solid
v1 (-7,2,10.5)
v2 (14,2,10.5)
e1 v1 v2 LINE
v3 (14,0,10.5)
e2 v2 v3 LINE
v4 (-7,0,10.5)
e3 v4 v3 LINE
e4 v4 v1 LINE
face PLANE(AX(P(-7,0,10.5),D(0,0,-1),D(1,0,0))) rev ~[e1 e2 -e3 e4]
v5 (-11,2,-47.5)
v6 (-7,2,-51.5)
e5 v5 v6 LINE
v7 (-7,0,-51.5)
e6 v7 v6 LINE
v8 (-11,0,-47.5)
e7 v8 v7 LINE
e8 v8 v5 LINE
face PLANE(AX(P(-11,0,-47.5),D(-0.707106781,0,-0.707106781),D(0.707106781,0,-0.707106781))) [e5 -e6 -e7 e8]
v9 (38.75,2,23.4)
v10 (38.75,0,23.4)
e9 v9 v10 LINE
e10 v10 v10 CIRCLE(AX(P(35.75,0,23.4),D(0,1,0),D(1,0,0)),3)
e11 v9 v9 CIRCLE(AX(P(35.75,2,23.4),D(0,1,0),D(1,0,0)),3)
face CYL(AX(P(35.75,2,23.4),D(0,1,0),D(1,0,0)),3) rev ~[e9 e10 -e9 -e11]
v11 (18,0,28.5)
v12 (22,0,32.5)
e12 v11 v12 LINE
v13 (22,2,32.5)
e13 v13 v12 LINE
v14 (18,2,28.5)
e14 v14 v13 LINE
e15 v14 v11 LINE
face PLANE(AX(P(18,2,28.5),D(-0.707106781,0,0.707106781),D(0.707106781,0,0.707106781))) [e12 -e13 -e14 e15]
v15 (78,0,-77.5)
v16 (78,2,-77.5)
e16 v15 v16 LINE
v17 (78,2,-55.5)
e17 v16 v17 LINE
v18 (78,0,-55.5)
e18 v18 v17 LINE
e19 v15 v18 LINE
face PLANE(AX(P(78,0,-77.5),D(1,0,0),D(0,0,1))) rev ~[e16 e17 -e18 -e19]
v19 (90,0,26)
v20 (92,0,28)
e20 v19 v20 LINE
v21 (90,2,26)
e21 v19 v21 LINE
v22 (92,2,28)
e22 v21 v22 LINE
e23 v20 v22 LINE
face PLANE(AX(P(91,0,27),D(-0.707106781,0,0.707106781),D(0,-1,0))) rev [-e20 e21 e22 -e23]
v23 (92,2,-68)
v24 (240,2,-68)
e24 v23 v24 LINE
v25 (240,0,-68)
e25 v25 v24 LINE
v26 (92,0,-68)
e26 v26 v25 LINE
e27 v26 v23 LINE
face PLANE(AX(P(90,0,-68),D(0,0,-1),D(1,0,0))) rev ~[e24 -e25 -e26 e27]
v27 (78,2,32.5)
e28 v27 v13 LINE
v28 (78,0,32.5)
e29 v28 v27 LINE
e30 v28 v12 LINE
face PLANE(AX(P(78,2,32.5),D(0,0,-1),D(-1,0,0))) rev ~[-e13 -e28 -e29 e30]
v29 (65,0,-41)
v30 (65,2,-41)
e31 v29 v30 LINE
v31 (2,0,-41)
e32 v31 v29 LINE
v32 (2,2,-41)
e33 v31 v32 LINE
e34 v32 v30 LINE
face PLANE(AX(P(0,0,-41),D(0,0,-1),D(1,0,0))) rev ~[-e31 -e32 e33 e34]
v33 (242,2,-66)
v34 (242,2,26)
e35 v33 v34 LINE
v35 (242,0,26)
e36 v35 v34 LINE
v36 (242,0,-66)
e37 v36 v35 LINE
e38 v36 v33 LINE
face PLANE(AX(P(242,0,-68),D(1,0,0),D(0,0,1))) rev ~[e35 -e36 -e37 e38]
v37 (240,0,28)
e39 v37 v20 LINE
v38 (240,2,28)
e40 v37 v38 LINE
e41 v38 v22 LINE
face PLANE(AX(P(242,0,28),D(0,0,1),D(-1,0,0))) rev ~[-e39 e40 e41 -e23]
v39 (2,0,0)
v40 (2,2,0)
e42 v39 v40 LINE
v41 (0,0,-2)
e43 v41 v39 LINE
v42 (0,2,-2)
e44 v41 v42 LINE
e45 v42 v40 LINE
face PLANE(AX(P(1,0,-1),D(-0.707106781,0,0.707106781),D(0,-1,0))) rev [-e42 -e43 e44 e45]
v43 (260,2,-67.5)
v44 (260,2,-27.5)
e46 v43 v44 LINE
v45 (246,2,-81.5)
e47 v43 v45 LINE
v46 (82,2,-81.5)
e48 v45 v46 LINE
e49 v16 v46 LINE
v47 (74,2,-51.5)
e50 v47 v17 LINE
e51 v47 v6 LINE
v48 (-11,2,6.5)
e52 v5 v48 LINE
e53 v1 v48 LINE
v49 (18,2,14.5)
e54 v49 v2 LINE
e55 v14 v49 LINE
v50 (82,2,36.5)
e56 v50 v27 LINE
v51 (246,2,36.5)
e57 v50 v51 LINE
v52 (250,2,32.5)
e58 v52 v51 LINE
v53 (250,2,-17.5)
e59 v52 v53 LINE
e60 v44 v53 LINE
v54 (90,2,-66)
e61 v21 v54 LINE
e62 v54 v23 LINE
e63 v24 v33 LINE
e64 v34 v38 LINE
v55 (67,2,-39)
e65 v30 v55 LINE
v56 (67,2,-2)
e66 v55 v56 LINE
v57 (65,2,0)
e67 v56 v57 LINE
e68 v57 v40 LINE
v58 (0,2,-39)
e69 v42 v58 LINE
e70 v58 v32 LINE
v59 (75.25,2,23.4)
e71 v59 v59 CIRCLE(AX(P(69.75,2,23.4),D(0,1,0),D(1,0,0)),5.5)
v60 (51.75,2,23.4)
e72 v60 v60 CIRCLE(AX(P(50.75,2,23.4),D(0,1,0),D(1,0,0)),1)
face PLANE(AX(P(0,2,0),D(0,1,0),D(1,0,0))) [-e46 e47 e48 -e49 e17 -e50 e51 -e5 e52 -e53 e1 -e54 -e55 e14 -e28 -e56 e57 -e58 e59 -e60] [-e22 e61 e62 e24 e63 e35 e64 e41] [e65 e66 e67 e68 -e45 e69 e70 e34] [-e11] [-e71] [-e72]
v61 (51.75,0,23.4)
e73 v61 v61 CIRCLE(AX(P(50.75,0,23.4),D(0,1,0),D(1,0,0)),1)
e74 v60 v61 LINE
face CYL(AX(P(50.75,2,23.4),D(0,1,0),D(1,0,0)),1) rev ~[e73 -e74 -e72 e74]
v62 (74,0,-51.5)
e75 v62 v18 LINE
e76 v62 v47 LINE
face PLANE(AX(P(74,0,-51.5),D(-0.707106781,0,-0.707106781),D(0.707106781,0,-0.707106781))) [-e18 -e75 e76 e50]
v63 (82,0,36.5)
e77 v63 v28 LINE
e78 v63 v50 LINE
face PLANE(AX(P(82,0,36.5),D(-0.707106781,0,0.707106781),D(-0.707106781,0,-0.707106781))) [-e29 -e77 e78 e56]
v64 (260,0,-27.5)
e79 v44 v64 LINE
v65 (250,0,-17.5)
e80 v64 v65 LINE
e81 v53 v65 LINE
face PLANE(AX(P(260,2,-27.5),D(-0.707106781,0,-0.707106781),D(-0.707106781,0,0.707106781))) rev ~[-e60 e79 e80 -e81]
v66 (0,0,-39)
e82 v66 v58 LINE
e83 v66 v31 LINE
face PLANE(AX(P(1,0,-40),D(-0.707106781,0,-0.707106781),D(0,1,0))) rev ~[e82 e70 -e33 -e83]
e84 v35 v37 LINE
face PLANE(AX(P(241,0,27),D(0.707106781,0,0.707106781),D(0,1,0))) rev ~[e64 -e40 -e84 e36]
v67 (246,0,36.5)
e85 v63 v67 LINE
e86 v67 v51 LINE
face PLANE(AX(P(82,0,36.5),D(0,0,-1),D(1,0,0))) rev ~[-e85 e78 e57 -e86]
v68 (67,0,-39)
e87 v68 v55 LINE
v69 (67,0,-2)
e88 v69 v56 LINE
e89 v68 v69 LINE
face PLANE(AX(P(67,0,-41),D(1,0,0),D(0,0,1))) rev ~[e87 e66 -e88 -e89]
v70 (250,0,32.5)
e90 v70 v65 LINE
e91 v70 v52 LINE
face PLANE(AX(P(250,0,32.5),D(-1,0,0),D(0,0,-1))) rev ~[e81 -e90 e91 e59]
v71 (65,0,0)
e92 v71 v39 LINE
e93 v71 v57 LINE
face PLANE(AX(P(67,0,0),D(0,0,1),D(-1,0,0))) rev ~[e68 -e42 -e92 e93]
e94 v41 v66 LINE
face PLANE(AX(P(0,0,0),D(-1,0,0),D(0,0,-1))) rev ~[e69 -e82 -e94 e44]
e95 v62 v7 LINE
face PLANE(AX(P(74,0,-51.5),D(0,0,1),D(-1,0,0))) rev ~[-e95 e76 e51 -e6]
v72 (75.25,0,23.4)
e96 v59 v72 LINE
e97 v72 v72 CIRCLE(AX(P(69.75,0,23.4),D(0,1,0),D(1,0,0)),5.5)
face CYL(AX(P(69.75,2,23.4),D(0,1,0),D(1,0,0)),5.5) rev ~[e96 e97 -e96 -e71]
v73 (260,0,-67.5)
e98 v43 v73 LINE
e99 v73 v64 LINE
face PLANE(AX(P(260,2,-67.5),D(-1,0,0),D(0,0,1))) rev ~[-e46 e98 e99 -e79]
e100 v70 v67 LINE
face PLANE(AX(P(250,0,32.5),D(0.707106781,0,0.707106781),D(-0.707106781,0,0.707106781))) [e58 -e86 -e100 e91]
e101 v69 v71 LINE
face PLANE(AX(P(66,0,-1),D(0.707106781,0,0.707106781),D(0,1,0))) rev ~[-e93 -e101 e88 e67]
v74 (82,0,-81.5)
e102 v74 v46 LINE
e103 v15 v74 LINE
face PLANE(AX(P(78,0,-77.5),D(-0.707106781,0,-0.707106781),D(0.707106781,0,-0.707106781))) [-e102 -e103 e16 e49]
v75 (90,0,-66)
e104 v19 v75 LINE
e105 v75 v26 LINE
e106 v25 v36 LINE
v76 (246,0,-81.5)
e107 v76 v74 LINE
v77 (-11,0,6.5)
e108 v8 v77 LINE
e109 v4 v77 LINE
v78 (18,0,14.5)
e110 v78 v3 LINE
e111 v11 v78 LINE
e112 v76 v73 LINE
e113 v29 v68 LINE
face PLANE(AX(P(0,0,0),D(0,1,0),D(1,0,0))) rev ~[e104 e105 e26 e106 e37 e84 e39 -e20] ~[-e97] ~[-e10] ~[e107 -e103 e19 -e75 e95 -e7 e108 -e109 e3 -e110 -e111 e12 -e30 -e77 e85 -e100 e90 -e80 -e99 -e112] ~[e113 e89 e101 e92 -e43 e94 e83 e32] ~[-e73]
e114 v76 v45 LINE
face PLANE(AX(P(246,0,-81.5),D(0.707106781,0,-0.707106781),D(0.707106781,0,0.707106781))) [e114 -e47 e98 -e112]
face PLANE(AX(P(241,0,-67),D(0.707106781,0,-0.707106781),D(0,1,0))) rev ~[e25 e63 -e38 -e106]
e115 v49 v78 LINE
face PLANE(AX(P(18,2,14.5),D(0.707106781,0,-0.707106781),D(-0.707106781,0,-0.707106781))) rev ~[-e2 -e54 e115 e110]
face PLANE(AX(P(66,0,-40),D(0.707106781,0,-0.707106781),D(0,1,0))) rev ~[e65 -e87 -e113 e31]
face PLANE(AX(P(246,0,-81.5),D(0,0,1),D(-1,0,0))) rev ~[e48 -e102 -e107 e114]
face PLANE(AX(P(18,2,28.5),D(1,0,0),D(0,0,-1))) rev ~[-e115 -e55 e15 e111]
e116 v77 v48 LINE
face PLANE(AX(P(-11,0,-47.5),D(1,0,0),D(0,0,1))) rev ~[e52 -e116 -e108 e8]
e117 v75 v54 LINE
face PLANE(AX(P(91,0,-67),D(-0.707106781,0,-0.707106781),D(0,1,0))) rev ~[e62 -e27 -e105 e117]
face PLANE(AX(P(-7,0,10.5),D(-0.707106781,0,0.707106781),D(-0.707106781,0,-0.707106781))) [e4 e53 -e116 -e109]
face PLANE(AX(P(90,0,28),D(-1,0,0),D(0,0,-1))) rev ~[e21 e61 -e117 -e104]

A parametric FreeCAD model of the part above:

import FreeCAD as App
import Part
import Sketcher

V = App.Vector


def edges_at(feature, points):
    """Names of the edges that pass closest to the given points."""
    edges = feature.Shape.Edges
    near = lambda p: min(range(len(edges)), key=lambda i: edges[i].distToShape(Part.Vertex(*p))[0])
    return sorted({f"Edge{near(p) + 1}" for p in points})


def add_polygon(sketch, points):
    """Adds a closed chain of lines whose ends are joined by coincident constraints."""
    first, n = sketch.GeometryCount, len(points)
    for a, b in zip(points, points[1:] + points[:1]):
        sketch.addGeometry(Part.LineSegment(App.Vector(*a, 0), App.Vector(*b, 0)), False)
    for i in range(n):
        sketch.addConstraint(Sketcher.Constraint("Coincident", first + i, 2, first + (i + 1) % n, 1))

doc = App.newDocument("Part")
body = doc.addObject("PartDesign::Body", "Body")

# Sketch on XZ plane
sketch1 = doc.addObject("Sketcher::SketchObject", "Sketch")
body.addObject(sketch1)
sketch1.AttachmentSupport = (doc.XZ_Plane, [""])
sketch1.MapMode = "FlatFace"
add_polygon(sketch1, [(-7, -52), (-11, -48), (-11, 6), (-7, 10), (74, 10), (78, 14), (78, 32), (82, 36), (246, 36), (250, 32), (250, -78), (246, -82), (82, -82), (78, -78), (78, -56), (74, -52)])  # lines 0-15
add_polygon(sketch1, [(90, 28), (90, -68), (242, -68), (242, 28)])  # lines 16-19
add_polygon(sketch1, [(0, 0), (0, -41), (67, -41), (67, 0)])  # lines 20-23
sketch1.addConstraint([
    Sketcher.Constraint("Vertical", 1),
    Sketcher.Constraint("Horizontal", 3),
    Sketcher.Constraint("Vertical", 5),
    Sketcher.Constraint("Horizontal", 7),
    Sketcher.Constraint("Vertical", 9),
    Sketcher.Constraint("Horizontal", 11),
    Sketcher.Constraint("Vertical", 13),
    Sketcher.Constraint("Horizontal", 15),
    Sketcher.Constraint("Vertical", 16),
    Sketcher.Constraint("Horizontal", 17),
    Sketcher.Constraint("Vertical", 18),
    Sketcher.Constraint("Horizontal", 19),
    Sketcher.Constraint("Vertical", 20),
    Sketcher.Constraint("Horizontal", 21),
    Sketcher.Constraint("Vertical", 22),
    Sketcher.Constraint("Horizontal", 23),
    Sketcher.Constraint("Coincident", 23, 2, -1, 1),
    Sketcher.Constraint("Perpendicular", 0, 2),
    Sketcher.Constraint("Parallel", 2, 4),
    Sketcher.Constraint("Parallel", 4, 6),
    Sketcher.Constraint("Perpendicular", 6, 8),
    Sketcher.Constraint("Perpendicular", 8, 10),
    Sketcher.Constraint("Perpendicular", 10, 12),
    Sketcher.Constraint("Parallel", 12, 14),
    Sketcher.Constraint("Horizontal", 5, 2, 8, 2),
    Sketcher.Constraint("Horizontal", 9, 2, 12, 2),
    Sketcher.Constraint("Vertical", 7, 2, 10, 2),
    Sketcher.Constraint("Vertical", 6, 2, 11, 2),
    Sketcher.Constraint("Vertical", 5, 2, 12, 2),
    Sketcher.Constraint("Vertical", 3, 2, 14, 2),
    Sketcher.Constraint("Vertical", 2, 2, 15, 2),
    Sketcher.Constraint("Equal", 2, 4),
    Sketcher.Constraint("Equal", 4, 6),
    Sketcher.Constraint("DistanceX", 17, 1, 17, 2, 152.0),
    Sketcher.Constraint("DistanceX", 21, 1, 21, 2, 67.0),
    Sketcher.Constraint("DistanceY", 16, 2, 16, 1, 96.0),
    Sketcher.Constraint("DistanceY", 20, 2, 20, 1, 41.0),
    Sketcher.Constraint("DistanceX", 2, 2, -1, 1, 7.0),
    Sketcher.Constraint("DistanceX", 1, 2, 2, 2, 4.0),
    Sketcher.Constraint("DistanceY", 1, 2, 5, 2, 26.0),
    Sketcher.Constraint("DistanceY", 10, 2, 4, 2, 96.0),
    Sketcher.Constraint("DistanceY", 11, 2, 13, 2, 26.0),
    Sketcher.Constraint("DistanceX", 17, 2, 10, 2, 4.0),
    Sketcher.Constraint("DistanceX", 21, 2, 14, 2, 7.0),
    Sketcher.Constraint("DistanceY", 18, 2, 7, 2, 8.5),
    Sketcher.Constraint("DistanceX", 7, 1, 7, 2, 164.0),
    Sketcher.Constraint("DistanceY", 16, 2, -1, 1, 68.0),
])
pad1 = doc.addObject("PartDesign::Pad", "Pad")
body.addObject(pad1)
pad1.Profile = sketch1
pad1.Length = 2
pad1.Reversed = True

# Sketch on XZ plane
sketch2 = doc.addObject("Sketcher::SketchObject", "Sketch001")
body.addObject(sketch2)
sketch2.AttachmentSupport = (doc.XZ_Plane, [""])
sketch2.MapMode = "FlatFace"
sketch2.AttachmentOffset = App.Placement(V(0, 0, -2), App.Rotation())
add_polygon(sketch2, [(250, -78), (250, -18), (260, -28), (260, -68)])  # lines 0-3
sketch2.addConstraint([
    Sketcher.Constraint("Vertical", 0),
    Sketcher.Constraint("Vertical", 2),
    Sketcher.Constraint("Perpendicular", 1, 3),
    Sketcher.Constraint("Equal", 1, 3),
    Sketcher.Constraint("DistanceY", 2, 2, 2, 1, 40.0),
    Sketcher.Constraint("DistanceX", 0, 2, 1, 2, 10.0),
    Sketcher.Constraint("DistanceX", -1, 1, 0, 2, 250.0),
    Sketcher.Constraint("DistanceY", 0, 2, -1, 1, 17.5),
])
pad2 = doc.addObject("PartDesign::Pad", "Pad001")
body.addObject(pad2)
pad2.Profile = sketch2
pad2.Length = 2

# Sketch on XZ plane
sketch3 = doc.addObject("Sketcher::SketchObject", "Sketch002")
body.addObject(sketch3)
sketch3.AttachmentSupport = (doc.XZ_Plane, [""])
sketch3.MapMode = "FlatFace"
sketch3.AttachmentOffset = App.Placement(V(0, 0, -2), App.Rotation())
add_polygon(sketch3, [(74, 10), (14, 10), (18, 14), (18, 28), (22, 32), (78, 32), (78, 14)])  # lines 0-6
sketch3.addConstraint([
    Sketcher.Constraint("Horizontal", 0),
    Sketcher.Constraint("Vertical", 2),
    Sketcher.Constraint("Horizontal", 4),
    Sketcher.Constraint("Vertical", 5),
    Sketcher.Constraint("Parallel", 1, 3),
    Sketcher.Constraint("Parallel", 3, 6),
    Sketcher.Constraint("Horizontal", 1, 2, 5, 2),
    Sketcher.Constraint("Equal", 1, 3),
    Sketcher.Constraint("DistanceX", 0, 2, 0, 1, 60.0),
    Sketcher.Constraint("DistanceX", 0, 2, 1, 2, 4.0),
    Sketcher.Constraint("DistanceY", 0, 2, 1, 2, 4.0),
    Sketcher.Constraint("DistanceY", 2, 1, 2, 2, 14.0),
    Sketcher.Constraint("DistanceX", -1, 1, 0, 2, 14.0),
    Sketcher.Constraint("DistanceY", -1, 1, 0, 2, 10.5),
])
pad3 = doc.addObject("PartDesign::Pad", "Pad002")
body.addObject(pad3)
pad3.Profile = sketch3
pad3.Length = 2
doc.recompute()

chamfer = doc.addObject("PartDesign::Chamfer", "Chamfer")
body.addObject(chamfer)
chamfer.Base = (pad3, edges_at(pad3, [
    (0, 1, -41),
    (67, 1, -41),
    (90, 1, -68),
    (90, 1, 28),
    (0, 1, 0),
    (67, 1, 0),
    (242, 1, 28),
    (242, 1, -68),
]))
chamfer.Size = 2

# Sketch on XZ plane
sketch4 = doc.addObject("Sketcher::SketchObject", "Sketch003")
body.addObject(sketch4)
sketch4.AttachmentSupport = (doc.XZ_Plane, [""])
sketch4.MapMode = "FlatFace"
sketch4.AttachmentOffset = App.Placement(V(0, 0, -2), App.Rotation())
sketch4.addGeometry([
    Part.Circle(V(69.8, 23.4, 0), V(0, 0, 1), 5.5),
    Part.Circle(V(50.8, 23.4, 0), V(0, 0, 1), 1),
    Part.Circle(V(35.8, 23.4, 0), V(0, 0, 1), 3),
], False)
sketch4.addConstraint([
    Sketcher.Constraint("Horizontal", 0, 3, 1, 3),
    Sketcher.Constraint("Horizontal", 1, 3, 2, 3),
    Sketcher.Constraint("Diameter", 0, 11.0),
    Sketcher.Constraint("Diameter", 1, 2.0),
    Sketcher.Constraint("Diameter", 2, 6.0),
    Sketcher.Constraint("DistanceX", 1, 3, 0, 3, 19.0),
    Sketcher.Constraint("DistanceX", 2, 3, 1, 3, 15.0),
    Sketcher.Constraint("DistanceY", -1, 1, 0, 3, 23.4),
    Sketcher.Constraint("DistanceX", -1, 1, 0, 3, 69.75),
])
pocket1 = doc.addObject("PartDesign::Pocket", "Pocket")
body.addObject(pocket1)
pocket1.Profile = sketch4
pocket1.Type = "ThroughAll"
pocket1.Reversed = True

doc.recompute()
